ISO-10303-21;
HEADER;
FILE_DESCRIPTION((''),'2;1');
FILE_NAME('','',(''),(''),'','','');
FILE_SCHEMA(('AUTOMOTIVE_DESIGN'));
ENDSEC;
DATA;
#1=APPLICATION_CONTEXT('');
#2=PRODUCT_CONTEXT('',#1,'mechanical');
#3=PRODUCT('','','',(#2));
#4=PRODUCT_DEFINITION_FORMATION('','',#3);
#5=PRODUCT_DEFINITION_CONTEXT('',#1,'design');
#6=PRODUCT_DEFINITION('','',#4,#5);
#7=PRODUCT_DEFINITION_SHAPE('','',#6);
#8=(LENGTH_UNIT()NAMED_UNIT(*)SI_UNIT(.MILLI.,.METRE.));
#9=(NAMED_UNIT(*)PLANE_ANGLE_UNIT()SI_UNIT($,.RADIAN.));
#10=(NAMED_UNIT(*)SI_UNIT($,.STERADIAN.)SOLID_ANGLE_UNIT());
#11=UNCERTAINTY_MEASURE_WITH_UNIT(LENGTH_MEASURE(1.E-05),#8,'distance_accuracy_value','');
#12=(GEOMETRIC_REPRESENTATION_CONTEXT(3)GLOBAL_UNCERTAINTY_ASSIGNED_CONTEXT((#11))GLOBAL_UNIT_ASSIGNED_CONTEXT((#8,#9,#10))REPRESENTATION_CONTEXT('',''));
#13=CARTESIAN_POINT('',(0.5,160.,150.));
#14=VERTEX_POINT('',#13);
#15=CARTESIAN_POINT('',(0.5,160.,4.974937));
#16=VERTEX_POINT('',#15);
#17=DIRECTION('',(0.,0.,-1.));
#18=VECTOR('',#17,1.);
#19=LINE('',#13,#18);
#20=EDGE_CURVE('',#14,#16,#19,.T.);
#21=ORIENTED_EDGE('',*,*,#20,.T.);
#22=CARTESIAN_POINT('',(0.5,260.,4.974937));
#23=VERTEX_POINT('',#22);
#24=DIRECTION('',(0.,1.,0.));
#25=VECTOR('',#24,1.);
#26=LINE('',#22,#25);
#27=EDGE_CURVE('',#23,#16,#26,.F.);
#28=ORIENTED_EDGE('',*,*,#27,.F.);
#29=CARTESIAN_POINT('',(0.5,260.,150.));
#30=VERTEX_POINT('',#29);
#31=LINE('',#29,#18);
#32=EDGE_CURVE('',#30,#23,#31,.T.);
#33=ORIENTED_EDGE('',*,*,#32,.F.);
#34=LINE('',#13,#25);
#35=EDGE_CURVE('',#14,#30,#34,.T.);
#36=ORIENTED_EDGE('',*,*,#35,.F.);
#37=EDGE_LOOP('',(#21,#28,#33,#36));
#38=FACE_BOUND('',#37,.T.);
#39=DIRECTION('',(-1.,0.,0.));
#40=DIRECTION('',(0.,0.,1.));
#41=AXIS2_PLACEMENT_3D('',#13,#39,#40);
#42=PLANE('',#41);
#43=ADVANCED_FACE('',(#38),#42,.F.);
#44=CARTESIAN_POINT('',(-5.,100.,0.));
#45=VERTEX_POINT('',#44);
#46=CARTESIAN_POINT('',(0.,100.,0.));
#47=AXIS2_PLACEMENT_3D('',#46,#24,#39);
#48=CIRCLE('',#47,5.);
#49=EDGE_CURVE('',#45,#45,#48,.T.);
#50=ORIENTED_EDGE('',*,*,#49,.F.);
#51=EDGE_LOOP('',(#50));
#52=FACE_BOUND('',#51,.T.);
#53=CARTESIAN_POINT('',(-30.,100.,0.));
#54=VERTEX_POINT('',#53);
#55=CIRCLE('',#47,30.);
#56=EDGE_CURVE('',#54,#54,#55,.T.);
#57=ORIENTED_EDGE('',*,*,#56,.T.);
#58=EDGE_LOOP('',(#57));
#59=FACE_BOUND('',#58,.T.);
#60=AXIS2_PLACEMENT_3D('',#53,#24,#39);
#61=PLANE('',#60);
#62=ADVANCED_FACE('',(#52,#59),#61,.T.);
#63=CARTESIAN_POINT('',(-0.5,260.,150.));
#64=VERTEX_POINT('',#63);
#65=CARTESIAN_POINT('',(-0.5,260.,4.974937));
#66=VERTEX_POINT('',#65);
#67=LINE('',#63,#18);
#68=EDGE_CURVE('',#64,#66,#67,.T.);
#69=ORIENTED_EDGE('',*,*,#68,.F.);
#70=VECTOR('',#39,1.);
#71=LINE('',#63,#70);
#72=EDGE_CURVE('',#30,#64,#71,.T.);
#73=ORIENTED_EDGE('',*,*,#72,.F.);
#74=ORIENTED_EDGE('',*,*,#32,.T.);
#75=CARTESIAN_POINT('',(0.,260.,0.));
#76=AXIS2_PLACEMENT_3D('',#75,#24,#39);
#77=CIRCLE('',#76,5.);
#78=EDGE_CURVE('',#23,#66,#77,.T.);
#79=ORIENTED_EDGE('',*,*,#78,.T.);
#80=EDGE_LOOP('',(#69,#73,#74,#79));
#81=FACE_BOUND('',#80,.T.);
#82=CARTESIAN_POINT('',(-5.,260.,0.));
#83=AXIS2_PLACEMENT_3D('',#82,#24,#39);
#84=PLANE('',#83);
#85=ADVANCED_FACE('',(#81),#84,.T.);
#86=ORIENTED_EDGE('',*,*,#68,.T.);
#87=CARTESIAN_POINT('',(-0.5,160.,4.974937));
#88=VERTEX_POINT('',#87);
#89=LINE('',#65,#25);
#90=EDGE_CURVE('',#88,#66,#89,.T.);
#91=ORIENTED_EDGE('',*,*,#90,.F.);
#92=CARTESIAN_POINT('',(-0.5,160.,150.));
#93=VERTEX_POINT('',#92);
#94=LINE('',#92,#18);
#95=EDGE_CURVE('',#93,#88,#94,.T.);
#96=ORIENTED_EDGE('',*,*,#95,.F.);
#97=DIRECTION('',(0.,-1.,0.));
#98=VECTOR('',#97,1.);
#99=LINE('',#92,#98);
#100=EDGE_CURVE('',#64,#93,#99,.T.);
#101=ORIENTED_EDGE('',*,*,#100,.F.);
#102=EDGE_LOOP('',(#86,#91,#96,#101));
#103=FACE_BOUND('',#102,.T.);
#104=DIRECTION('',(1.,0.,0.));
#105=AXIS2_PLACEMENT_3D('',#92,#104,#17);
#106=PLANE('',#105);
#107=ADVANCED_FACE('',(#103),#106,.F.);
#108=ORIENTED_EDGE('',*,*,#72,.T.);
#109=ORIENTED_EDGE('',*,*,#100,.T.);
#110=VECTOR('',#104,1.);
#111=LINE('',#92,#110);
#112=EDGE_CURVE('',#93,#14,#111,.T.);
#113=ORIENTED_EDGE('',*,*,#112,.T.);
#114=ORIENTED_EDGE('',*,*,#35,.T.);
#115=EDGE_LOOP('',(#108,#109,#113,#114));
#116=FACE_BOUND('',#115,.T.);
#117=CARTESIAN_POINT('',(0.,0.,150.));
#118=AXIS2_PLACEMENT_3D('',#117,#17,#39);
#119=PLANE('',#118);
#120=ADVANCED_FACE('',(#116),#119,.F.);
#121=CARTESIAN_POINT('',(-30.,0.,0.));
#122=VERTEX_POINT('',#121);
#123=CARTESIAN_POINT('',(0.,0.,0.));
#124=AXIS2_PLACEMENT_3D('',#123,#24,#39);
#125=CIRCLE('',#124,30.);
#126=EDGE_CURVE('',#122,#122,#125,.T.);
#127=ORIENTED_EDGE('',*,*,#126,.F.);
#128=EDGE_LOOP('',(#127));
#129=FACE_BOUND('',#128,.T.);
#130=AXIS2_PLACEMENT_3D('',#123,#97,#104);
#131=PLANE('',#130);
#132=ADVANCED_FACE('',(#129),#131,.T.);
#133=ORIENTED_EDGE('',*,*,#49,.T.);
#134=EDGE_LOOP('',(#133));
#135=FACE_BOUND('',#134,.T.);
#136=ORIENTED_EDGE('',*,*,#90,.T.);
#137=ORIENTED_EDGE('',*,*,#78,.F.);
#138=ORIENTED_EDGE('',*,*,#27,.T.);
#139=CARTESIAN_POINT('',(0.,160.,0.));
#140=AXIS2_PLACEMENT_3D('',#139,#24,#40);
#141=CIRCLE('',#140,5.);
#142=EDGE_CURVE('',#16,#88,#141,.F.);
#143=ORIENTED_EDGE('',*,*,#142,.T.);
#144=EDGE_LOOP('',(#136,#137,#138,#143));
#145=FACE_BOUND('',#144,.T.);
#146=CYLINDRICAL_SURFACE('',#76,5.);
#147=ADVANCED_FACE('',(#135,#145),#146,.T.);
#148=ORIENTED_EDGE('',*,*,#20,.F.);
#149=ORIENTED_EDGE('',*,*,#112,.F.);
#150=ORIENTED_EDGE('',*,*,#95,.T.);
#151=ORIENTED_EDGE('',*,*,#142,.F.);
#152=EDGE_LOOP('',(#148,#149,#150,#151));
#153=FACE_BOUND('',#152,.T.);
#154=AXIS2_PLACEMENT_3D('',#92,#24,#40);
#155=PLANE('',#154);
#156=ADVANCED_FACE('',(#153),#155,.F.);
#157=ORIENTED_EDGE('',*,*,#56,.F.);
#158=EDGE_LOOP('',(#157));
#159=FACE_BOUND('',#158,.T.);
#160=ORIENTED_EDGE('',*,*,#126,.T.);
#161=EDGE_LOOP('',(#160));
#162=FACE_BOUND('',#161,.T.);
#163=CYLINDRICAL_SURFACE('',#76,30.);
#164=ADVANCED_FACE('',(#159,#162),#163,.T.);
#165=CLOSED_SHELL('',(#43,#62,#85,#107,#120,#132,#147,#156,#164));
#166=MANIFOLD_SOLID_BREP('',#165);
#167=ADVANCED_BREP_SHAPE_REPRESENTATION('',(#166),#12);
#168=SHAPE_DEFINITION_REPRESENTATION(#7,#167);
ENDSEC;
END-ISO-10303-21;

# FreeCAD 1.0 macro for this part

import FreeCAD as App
import Part
import Sketcher
from FreeCAD import Vector


def add_polygon(sketch, points):
    """Adds a closed chain of lines whose ends are joined by coincident constraints."""
    first, n = sketch.GeometryCount, len(points)
    for a, b in zip(points, points[1:] + points[:1]):
        sketch.addGeometry(Part.LineSegment(App.Vector(*a, 0), App.Vector(*b, 0)), False)
    for i in range(n):
        sketch.addConstraint(Sketcher.Constraint("Coincident", first + i, 2, first + (i + 1) % n, 1))

doc = App.newDocument("Part")
body = doc.addObject("PartDesign::Body", "Body")

# Sketch on XY plane
sketch1 = doc.addObject("Sketcher::SketchObject", "Sketch")
body.addObject(sketch1)
sketch1.AttachmentSupport = (doc.XY_Plane, [""])
sketch1.MapMode = "FlatFace"
add_polygon(sketch1, [(-30, 0), (0, 0), (0, 260), (-5, 260), (-5, 100), (-30, 100)])  # lines 0-5
sketch1.addConstraint([
    Sketcher.Constraint("Horizontal", 0),
    Sketcher.Constraint("Vertical", 1),
    Sketcher.Constraint("Horizontal", 2),
    Sketcher.Constraint("Vertical", 3),
    Sketcher.Constraint("Horizontal", 4),
    Sketcher.Constraint("Vertical", 5),
    Sketcher.Constraint("Coincident", 0, 2, -1, 1),
    Sketcher.Constraint("DistanceX", 0, 1, 0, 2, 30.0),
    Sketcher.Constraint("DistanceX", 2, 2, 2, 1, 5.0),
    Sketcher.Constraint("DistanceY", 1, 1, 1, 2, 260.0),
    Sketcher.Constraint("DistanceY", 3, 2, 3, 1, 160.0),
])
revolution = doc.addObject("PartDesign::Revolution", "Revolution")
body.addObject(revolution)
revolution.Profile = sketch1
revolution.ReferenceAxis = (sketch1, ["V_Axis"])
revolution.Angle = 360

# Sketch on XY plane
sketch2 = doc.addObject("Sketcher::SketchObject", "Sketch001")
body.addObject(sketch2)
sketch2.AttachmentSupport = (doc.XY_Plane, [""])
sketch2.MapMode = "FlatFace"
add_polygon(sketch2, [(-0.5, 260), (-0.5, 160), (0.5, 160), (0.5, 260)])  # lines 0-3
sketch2.addConstraint([
    Sketcher.Constraint("Vertical", 0),
    Sketcher.Constraint("Horizontal", 1),
    Sketcher.Constraint("Vertical", 2),
    Sketcher.Constraint("Horizontal", 3),
    Sketcher.Constraint("DistanceX", 1, 1, 1, 2, 1.0),
    Sketcher.Constraint("DistanceY", 0, 2, 0, 1, 100.0),
    Sketcher.Constraint("DistanceY", -1, 1, 0, 2, 160.0),
    Sketcher.Constraint("DistanceX", 0, 2, -1, 1, 0.5),
])
pad1 = doc.addObject("PartDesign::Pad", "Pad")
body.addObject(pad1)
pad1.Profile = sketch2
pad1.Length = 150

doc.recompute()
